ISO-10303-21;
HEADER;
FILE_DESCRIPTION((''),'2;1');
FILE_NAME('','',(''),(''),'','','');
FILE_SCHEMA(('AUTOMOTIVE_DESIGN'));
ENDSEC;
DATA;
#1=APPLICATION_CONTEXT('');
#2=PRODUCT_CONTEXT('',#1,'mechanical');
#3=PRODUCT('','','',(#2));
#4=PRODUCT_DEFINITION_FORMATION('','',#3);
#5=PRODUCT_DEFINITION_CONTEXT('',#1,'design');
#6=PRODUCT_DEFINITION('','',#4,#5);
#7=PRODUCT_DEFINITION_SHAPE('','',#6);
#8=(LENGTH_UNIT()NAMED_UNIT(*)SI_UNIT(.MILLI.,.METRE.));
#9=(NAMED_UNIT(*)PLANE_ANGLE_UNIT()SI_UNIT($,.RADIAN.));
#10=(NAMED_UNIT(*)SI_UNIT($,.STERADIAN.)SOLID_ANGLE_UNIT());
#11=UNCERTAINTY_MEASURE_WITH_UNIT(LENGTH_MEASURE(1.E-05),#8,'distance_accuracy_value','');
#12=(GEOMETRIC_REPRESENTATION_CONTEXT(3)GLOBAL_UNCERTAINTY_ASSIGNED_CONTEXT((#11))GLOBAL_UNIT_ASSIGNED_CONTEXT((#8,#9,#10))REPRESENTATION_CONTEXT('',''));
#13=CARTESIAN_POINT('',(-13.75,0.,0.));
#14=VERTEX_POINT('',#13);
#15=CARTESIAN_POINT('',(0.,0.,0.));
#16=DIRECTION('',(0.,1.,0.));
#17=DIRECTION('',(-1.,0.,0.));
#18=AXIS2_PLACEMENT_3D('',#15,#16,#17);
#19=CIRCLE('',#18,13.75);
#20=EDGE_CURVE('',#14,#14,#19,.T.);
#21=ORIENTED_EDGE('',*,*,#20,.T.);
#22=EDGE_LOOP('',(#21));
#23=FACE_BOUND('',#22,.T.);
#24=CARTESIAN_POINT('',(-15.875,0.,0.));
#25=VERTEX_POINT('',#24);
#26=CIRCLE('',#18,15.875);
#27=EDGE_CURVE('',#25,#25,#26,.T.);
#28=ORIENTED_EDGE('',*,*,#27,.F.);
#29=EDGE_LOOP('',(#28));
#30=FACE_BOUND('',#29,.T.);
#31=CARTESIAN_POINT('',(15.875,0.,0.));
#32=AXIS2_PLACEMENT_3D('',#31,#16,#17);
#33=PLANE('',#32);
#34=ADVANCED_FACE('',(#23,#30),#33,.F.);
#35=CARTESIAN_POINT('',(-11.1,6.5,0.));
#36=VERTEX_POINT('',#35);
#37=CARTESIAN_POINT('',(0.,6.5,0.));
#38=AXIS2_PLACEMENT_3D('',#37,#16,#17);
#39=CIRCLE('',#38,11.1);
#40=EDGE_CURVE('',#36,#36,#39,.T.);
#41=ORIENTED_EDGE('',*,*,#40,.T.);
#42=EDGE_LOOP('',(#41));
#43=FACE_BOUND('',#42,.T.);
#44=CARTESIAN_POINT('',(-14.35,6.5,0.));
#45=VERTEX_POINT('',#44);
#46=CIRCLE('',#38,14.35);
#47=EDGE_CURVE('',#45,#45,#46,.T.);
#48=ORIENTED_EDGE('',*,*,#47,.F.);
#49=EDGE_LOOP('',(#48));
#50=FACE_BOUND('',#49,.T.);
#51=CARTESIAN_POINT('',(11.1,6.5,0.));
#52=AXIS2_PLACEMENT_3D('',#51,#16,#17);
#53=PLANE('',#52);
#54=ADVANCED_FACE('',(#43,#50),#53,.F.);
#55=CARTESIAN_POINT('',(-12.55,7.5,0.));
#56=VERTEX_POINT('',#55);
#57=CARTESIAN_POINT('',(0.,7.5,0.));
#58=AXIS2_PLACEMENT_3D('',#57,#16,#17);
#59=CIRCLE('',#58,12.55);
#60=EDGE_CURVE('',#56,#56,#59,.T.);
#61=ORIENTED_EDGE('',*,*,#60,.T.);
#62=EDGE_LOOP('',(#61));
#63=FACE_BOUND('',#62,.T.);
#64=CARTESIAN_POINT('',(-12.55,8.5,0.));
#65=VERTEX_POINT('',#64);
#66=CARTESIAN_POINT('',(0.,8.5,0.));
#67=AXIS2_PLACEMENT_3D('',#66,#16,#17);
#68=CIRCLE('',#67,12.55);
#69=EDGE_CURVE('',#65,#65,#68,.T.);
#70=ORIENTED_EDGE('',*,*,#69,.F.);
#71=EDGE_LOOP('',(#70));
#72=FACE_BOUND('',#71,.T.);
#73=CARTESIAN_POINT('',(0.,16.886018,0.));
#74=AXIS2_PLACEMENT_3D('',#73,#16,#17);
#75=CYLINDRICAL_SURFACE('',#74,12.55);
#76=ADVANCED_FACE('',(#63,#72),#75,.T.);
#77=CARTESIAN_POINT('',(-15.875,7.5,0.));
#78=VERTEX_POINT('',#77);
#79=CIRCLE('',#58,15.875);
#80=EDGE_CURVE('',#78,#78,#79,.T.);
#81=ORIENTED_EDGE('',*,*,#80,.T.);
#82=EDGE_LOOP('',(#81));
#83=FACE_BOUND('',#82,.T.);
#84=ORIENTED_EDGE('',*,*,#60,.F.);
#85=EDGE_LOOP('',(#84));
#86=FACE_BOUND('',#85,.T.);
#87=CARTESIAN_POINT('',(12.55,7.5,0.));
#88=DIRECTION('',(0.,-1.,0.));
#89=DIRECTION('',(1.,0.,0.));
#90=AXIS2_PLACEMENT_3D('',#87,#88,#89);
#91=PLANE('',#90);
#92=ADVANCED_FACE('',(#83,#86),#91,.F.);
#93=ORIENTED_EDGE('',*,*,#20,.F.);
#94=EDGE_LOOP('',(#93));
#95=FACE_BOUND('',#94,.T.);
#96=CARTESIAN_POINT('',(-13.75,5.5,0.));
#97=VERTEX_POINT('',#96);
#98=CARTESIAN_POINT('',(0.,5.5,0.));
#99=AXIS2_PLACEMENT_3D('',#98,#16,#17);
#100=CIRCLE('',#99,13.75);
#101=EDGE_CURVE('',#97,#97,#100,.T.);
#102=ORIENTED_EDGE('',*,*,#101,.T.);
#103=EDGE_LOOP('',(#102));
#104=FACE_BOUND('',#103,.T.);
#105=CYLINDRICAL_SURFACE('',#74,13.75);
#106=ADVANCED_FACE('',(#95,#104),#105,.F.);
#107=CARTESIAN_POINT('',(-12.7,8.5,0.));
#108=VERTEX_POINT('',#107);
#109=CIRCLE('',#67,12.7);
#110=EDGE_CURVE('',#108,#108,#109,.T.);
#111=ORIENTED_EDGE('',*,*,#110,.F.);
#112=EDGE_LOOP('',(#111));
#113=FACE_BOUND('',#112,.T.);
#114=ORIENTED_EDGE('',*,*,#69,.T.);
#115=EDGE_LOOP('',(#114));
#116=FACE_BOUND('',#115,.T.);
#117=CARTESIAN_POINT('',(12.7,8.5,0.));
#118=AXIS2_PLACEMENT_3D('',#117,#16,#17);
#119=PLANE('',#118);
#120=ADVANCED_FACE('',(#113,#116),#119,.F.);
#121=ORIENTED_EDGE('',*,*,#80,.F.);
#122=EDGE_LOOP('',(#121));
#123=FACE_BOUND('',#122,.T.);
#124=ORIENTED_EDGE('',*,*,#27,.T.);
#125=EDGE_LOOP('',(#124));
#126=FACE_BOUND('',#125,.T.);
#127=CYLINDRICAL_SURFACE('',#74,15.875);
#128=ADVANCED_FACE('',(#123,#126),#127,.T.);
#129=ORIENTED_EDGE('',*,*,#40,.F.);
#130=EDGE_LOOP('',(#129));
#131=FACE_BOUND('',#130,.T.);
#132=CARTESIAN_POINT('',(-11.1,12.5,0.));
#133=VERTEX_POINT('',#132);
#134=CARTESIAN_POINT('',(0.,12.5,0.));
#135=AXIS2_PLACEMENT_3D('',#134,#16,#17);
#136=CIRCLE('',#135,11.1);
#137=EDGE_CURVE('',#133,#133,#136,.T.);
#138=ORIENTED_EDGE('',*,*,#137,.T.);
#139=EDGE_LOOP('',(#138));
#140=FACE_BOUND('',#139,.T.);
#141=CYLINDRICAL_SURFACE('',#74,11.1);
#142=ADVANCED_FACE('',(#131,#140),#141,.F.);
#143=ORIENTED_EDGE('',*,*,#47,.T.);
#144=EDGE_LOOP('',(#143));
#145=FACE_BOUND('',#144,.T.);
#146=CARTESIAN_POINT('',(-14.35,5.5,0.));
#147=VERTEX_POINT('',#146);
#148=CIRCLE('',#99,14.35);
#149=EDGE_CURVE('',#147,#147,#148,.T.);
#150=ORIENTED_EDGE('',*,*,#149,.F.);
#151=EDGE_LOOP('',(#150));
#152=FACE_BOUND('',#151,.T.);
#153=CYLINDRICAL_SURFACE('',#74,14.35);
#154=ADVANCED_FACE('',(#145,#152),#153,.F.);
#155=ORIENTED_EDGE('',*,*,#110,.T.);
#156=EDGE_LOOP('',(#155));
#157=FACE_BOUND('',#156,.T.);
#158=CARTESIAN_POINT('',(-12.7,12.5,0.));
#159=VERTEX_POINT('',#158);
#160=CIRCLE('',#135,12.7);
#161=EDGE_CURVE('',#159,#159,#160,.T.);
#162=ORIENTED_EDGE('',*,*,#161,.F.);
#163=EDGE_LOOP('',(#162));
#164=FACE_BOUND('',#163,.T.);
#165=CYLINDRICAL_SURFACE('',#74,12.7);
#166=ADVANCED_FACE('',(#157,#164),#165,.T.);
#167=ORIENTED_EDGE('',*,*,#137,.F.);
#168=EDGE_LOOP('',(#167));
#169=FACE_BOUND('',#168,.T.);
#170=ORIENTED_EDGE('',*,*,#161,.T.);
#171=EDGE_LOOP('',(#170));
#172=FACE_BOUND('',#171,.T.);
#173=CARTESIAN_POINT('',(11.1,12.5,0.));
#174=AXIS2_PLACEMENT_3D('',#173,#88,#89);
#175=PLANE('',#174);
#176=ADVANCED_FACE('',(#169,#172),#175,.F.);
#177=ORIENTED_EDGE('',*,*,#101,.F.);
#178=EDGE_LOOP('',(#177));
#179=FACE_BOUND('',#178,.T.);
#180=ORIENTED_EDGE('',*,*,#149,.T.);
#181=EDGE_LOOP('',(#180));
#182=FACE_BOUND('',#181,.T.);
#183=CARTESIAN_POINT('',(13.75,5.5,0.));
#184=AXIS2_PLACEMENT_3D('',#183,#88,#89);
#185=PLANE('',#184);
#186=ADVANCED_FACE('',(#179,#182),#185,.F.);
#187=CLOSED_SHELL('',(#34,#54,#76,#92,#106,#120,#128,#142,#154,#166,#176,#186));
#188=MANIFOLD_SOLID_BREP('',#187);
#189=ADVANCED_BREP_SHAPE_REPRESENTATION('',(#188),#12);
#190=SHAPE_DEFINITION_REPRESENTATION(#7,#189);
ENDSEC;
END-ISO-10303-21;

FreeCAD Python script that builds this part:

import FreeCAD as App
import Part
import Sketcher
Q = App.Units.Quantity

doc = App.newDocument("Part")
body = doc.addObject("PartDesign::Body", "Body")

# Sketch on XY plane
sketch1 = body.newObject("Sketcher::SketchObject", "Sketch")
sketch1.AttachmentSupport = (doc.getObject("XY_Plane"), [""])
sketch1.MapMode = "FlatFace"
sketch1.addGeometry(Part.LineSegment(App.Vector(13.75, 5.5, 0), App.Vector(13.75, 0, 0)), False)
sketch1.addGeometry(Part.LineSegment(App.Vector(13.75, 0, 0), App.Vector(15.875, 0, 0)), False)
sketch1.addGeometry(Part.LineSegment(App.Vector(15.875, 0, 0), App.Vector(15.875, 7.5, 0)), False)
sketch1.addGeometry(Part.LineSegment(App.Vector(15.875, 7.5, 0), App.Vector(12.55, 7.5, 0)), False)
sketch1.addGeometry(Part.LineSegment(App.Vector(12.55, 7.5, 0), App.Vector(12.55, 8.5, 0)), False)
sketch1.addGeometry(Part.LineSegment(App.Vector(12.55, 8.5, 0), App.Vector(12.7, 8.5, 0)), False)
sketch1.addGeometry(Part.LineSegment(App.Vector(12.7, 8.5, 0), App.Vector(12.7, 12.5, 0)), False)
sketch1.addGeometry(Part.LineSegment(App.Vector(12.7, 12.5, 0), App.Vector(11.1, 12.5, 0)), False)
sketch1.addGeometry(Part.LineSegment(App.Vector(11.1, 12.5, 0), App.Vector(11.1, 6.5, 0)), False)
sketch1.addGeometry(Part.LineSegment(App.Vector(11.1, 6.5, 0), App.Vector(14.35, 6.5, 0)), False)
sketch1.addGeometry(Part.LineSegment(App.Vector(14.35, 6.5, 0), App.Vector(14.35, 5.5, 0)), False)
sketch1.addGeometry(Part.LineSegment(App.Vector(14.35, 5.5, 0), App.Vector(13.75, 5.5, 0)), False)
sketch1.addConstraint(Sketcher.Constraint("Coincident", 0, 2, 1, 1))
sketch1.addConstraint(Sketcher.Constraint("Coincident", 1, 2, 2, 1))
sketch1.addConstraint(Sketcher.Constraint("Coincident", 2, 2, 3, 1))
sketch1.addConstraint(Sketcher.Constraint("Coincident", 3, 2, 4, 1))
sketch1.addConstraint(Sketcher.Constraint("Coincident", 4, 2, 5, 1))
sketch1.addConstraint(Sketcher.Constraint("Coincident", 5, 2, 6, 1))
sketch1.addConstraint(Sketcher.Constraint("Coincident", 6, 2, 7, 1))
sketch1.addConstraint(Sketcher.Constraint("Coincident", 7, 2, 8, 1))
sketch1.addConstraint(Sketcher.Constraint("Coincident", 8, 2, 9, 1))
sketch1.addConstraint(Sketcher.Constraint("Coincident", 9, 2, 10, 1))
sketch1.addConstraint(Sketcher.Constraint("Coincident", 10, 2, 11, 1))
sketch1.addConstraint(Sketcher.Constraint("Coincident", 11, 2, 0, 1))
sketch1.addConstraint(Sketcher.Constraint("Vertical", 0))
sketch1.addConstraint(Sketcher.Constraint("Horizontal", 1))
sketch1.addConstraint(Sketcher.Constraint("Vertical", 2))
sketch1.addConstraint(Sketcher.Constraint("Horizontal", 3))
sketch1.addConstraint(Sketcher.Constraint("Vertical", 4))
sketch1.addConstraint(Sketcher.Constraint("Horizontal", 5))
sketch1.addConstraint(Sketcher.Constraint("Vertical", 6))
sketch1.addConstraint(Sketcher.Constraint("Horizontal", 7))
sketch1.addConstraint(Sketcher.Constraint("Vertical", 8))
sketch1.addConstraint(Sketcher.Constraint("Horizontal", 9))
sketch1.addConstraint(Sketcher.Constraint("Vertical", 10))
sketch1.addConstraint(Sketcher.Constraint("Horizontal", 11))
sketch1.addConstraint(Sketcher.Constraint("PointOnObject", 0, 2, -1))
sketch1.addConstraint(Sketcher.Constraint("Equal", 4, 10))
sketch1.addConstraint(Sketcher.Constraint("DistanceY", 4, 1, 4, 2, Q("1 mm")))
sketch1.addConstraint(Sketcher.Constraint("DistanceY", 6, 1, 6, 2, Q("4 mm")))
sketch1.addConstraint(Sketcher.Constraint("DistanceY", 8, 2, 8, 1, Q("6 mm")))
sketch1.addConstraint(Sketcher.Constraint("DistanceX", 7, 2, 7, 1, Q("1.6 mm")))
sketch1.addConstraint(Sketcher.Constraint("DistanceX", 11, 2, 11, 1, Q("0.6 mm")))
sketch1.addConstraint(Sketcher.Constraint("DistanceY", 0, 2, 0, 1, Q("5.5 mm")))
sketch1.addConstraint(Sketcher.Constraint("DistanceX", 5, 1, 5, 2, Q("0.15 mm")))
sketch1.addConstraint(Sketcher.Constraint("DistanceX", 9, 1, 9, 2, Q("3.25 mm")))
sketch1.addConstraint(Sketcher.Constraint("DistanceX", -1, 1, 5, 2, Q("12.7 mm")))
sketch1.addConstraint(Sketcher.Constraint("DistanceX", 1, 1, 1, 2, Q("2.125 mm")))
revolution = body.newObject("PartDesign::Revolution", "Revolution")
revolution.Profile = sketch1
revolution.ReferenceAxis = (sketch1, ["V_Axis"])
revolution.Angle = 360

doc.recompute()
